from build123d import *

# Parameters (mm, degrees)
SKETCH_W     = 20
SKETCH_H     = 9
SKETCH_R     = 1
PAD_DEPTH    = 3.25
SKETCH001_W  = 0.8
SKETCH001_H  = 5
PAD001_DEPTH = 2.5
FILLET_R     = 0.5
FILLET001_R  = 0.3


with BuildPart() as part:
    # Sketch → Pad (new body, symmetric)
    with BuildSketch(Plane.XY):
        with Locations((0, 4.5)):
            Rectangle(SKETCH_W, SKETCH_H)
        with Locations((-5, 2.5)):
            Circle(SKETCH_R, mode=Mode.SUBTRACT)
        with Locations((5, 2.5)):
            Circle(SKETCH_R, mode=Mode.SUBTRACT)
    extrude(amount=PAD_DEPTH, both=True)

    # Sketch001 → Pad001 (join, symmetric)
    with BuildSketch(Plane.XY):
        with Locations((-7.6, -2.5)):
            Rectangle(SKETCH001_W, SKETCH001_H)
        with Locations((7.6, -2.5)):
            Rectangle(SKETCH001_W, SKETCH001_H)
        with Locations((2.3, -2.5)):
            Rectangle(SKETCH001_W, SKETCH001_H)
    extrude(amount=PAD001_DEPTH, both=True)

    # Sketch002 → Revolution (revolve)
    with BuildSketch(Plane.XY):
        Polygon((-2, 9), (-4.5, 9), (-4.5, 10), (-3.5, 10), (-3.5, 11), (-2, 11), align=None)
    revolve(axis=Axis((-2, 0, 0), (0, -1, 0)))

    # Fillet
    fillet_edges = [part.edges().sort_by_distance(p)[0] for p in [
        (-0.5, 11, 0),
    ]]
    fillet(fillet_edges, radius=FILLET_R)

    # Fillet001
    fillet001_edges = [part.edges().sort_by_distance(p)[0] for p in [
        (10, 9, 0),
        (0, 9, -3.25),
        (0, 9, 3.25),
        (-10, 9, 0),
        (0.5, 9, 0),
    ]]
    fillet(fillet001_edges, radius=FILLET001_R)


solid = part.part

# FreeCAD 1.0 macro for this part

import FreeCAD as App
import Part
import Sketcher

V = App.Vector


def edges_at(feature, points):
    """Names of the edges that pass closest to the given points."""
    edges = feature.Shape.Edges
    near = lambda p: min(range(len(edges)), key=lambda i: edges[i].distToShape(Part.Vertex(*p))[0])
    return sorted({f"Edge{near(p) + 1}" for p in points})


def add_polygon(sketch, points):
    """Adds a closed chain of lines whose ends are joined by coincident constraints."""
    first, n = sketch.GeometryCount, len(points)
    for a, b in zip(points, points[1:] + points[:1]):
        sketch.addGeometry(Part.LineSegment(App.Vector(*a, 0), App.Vector(*b, 0)), False)
    for i in range(n):
        sketch.addConstraint(Sketcher.Constraint("Coincident", first + i, 2, first + (i + 1) % n, 1))

doc = App.newDocument("Part")
body = doc.addObject("PartDesign::Body", "Body")

# Sketch on XY plane
sketch1 = body.newObject("Sketcher::SketchObject", "Sketch")
sketch1.AttachmentSupport = (doc.getObject("XY_Plane"), [""])
sketch1.MapMode = "FlatFace"
add_polygon(sketch1, [(-10, 9), (-10, 0), (10, 0), (10, 9)])  # lines 0-3
sketch1.addGeometry(Part.Circle(V(-5, 2.5, 0), V(0, 0, 1), 1), False)  # 4
sketch1.addGeometry(Part.Circle(V(5, 2.5, 0), V(0, 0, 1), 1), False)  # 5
sketch1.addConstraint(Sketcher.Constraint("Vertical", 0))
sketch1.addConstraint(Sketcher.Constraint("Horizontal", 1))
sketch1.addConstraint(Sketcher.Constraint("Vertical", 2))
sketch1.addConstraint(Sketcher.Constraint("Horizontal", 3))
sketch1.addConstraint(Sketcher.Constraint("Equal", 4, 5))
sketch1.addConstraint(Sketcher.Constraint("Symmetric", 0, 2, 1, 2, -1, 1))
sketch1.addConstraint(Sketcher.Constraint("Symmetric", 4, 3, 5, 3, -2))
sketch1.addConstraint(Sketcher.Constraint("Diameter", 4, 2.0))
sketch1.addConstraint(Sketcher.Constraint("DistanceX", 1, 1, 1, 2, 20.0))
sketch1.addConstraint(Sketcher.Constraint("DistanceY", 0, 2, 0, 1, 9.0))
sketch1.addConstraint(Sketcher.Constraint("DistanceX", 4, 3, -1, 1, 5.0))
sketch1.addConstraint(Sketcher.Constraint("DistanceY", -1, 1, 4, 3, 2.5))
pad1 = body.newObject("PartDesign::Pad", "Pad")
pad1.Profile = sketch1
pad1.Length = 6.5
pad1.Midplane = True

# Sketch on XY plane
sketch2 = body.newObject("Sketcher::SketchObject", "Sketch001")
sketch2.AttachmentSupport = (doc.getObject("XY_Plane"), [""])
sketch2.MapMode = "FlatFace"
add_polygon(sketch2, [(-8, 0), (-8, -5), (-7.2, -5), (-7.2, 0)])  # lines 0-3
add_polygon(sketch2, [(7.2, 0), (7.2, -5), (8, -5), (8, 0)])  # lines 4-7
add_polygon(sketch2, [(1.9, 0), (1.9, -5), (2.7, -5), (2.7, 0)])  # lines 8-11
sketch2.addConstraint(Sketcher.Constraint("Vertical", 0))
sketch2.addConstraint(Sketcher.Constraint("Horizontal", 1))
sketch2.addConstraint(Sketcher.Constraint("Vertical", 2))
sketch2.addConstraint(Sketcher.Constraint("Horizontal", 3))
sketch2.addConstraint(Sketcher.Constraint("Vertical", 4))
sketch2.addConstraint(Sketcher.Constraint("Horizontal", 5))
sketch2.addConstraint(Sketcher.Constraint("Vertical", 6))
sketch2.addConstraint(Sketcher.Constraint("Horizontal", 7))
sketch2.addConstraint(Sketcher.Constraint("Vertical", 8))
sketch2.addConstraint(Sketcher.Constraint("Horizontal", 9))
sketch2.addConstraint(Sketcher.Constraint("Vertical", 10))
sketch2.addConstraint(Sketcher.Constraint("Horizontal", 11))
sketch2.addConstraint(Sketcher.Constraint("Symmetric", 3, 2, 6, 2, -1, 1))
sketch2.addConstraint(Sketcher.Constraint("Symmetric", 1, 2, 4, 2, -2))
sketch2.addConstraint(Sketcher.Constraint("PointOnObject", 2, 2, -1))
sketch2.addConstraint(Sketcher.Constraint("PointOnObject", 10, 2, -1))
sketch2.addConstraint(Sketcher.Constraint("Horizontal", 5, 2, 8, 2))
sketch2.addConstraint(Sketcher.Constraint("Equal", 7, 9))
sketch2.addConstraint(Sketcher.Constraint("DistanceY", 0, 2, 0, 1, 5.0))
sketch2.addConstraint(Sketcher.Constraint("DistanceX", 1, 1, 1, 2, 0.8))
sketch2.addConstraint(Sketcher.Constraint("DistanceX", 0, 2, -1, 1, 8.0))
sketch2.addConstraint(Sketcher.Constraint("DistanceX", -1, 1, 8, 2, 1.9))
pad2 = body.newObject("PartDesign::Pad", "Pad001")
pad2.Profile = sketch2
pad2.Length = 5
pad2.Midplane = True

# Sketch on XY plane
sketch3 = body.newObject("Sketcher::SketchObject", "Sketch002")
sketch3.AttachmentSupport = (doc.getObject("XY_Plane"), [""])
sketch3.MapMode = "FlatFace"
add_polygon(sketch3, [(-4.5, 9), (-2, 9), (-2, 11), (-3.5, 11), (-3.5, 10), (-4.5, 10)])  # lines 0-5
sketch3.addGeometry(Part.LineSegment(V(-2, 11, 0), V(-2, 9, 0)), True)  # axis
sketch3.addConstraint(Sketcher.Constraint("Horizontal", 0))
sketch3.addConstraint(Sketcher.Constraint("Vertical", 1))
sketch3.addConstraint(Sketcher.Constraint("Horizontal", 2))
sketch3.addConstraint(Sketcher.Constraint("Vertical", 3))
sketch3.addConstraint(Sketcher.Constraint("Horizontal", 4))
sketch3.addConstraint(Sketcher.Constraint("Vertical", 5))
sketch3.addConstraint(Sketcher.Constraint("Vertical", 6))
sketch3.addConstraint(Sketcher.Constraint("Coincident", 6, 1, 1, 2))
sketch3.addConstraint(Sketcher.Constraint("Horizontal", 5, 2, 6, 2))
sketch3.addConstraint(Sketcher.Constraint("Equal", 4, 3))
sketch3.addConstraint(Sketcher.Constraint("Equal", 3, 5))
sketch3.addConstraint(Sketcher.Constraint("DistanceX", 4, 2, 4, 1, 1.0))
sketch3.addConstraint(Sketcher.Constraint("DistanceX", 0, 1, 0, 2, 2.5))
sketch3.addConstraint(Sketcher.Constraint("DistanceX", 0, 2, -1, 1, 2.0))
sketch3.addConstraint(Sketcher.Constraint("DistanceY", -1, 1, 0, 2, 9.0))
revolution = body.newObject("PartDesign::Revolution", "Revolution")
revolution.Profile = sketch3
revolution.ReferenceAxis = (sketch3, ["Axis0"])
revolution.Angle = 360
doc.recompute()

fillet = body.newObject("PartDesign::Fillet", "Fillet")
fillet.Base = (revolution, edges_at(revolution, [(-0.5, 11, 0)]))
fillet.Radius = 0.5
doc.recompute()

fillet2 = body.newObject("PartDesign::Fillet", "Fillet001")
fillet2.Base = (fillet, edges_at(fillet, [
    (10, 9, 0),
    (0, 9, -3.25),
    (0, 9, 3.25),
    (-10, 9, 0),
    (0.5, 9, 0),
]))
fillet2.Radius = 0.3

doc.recompute()
